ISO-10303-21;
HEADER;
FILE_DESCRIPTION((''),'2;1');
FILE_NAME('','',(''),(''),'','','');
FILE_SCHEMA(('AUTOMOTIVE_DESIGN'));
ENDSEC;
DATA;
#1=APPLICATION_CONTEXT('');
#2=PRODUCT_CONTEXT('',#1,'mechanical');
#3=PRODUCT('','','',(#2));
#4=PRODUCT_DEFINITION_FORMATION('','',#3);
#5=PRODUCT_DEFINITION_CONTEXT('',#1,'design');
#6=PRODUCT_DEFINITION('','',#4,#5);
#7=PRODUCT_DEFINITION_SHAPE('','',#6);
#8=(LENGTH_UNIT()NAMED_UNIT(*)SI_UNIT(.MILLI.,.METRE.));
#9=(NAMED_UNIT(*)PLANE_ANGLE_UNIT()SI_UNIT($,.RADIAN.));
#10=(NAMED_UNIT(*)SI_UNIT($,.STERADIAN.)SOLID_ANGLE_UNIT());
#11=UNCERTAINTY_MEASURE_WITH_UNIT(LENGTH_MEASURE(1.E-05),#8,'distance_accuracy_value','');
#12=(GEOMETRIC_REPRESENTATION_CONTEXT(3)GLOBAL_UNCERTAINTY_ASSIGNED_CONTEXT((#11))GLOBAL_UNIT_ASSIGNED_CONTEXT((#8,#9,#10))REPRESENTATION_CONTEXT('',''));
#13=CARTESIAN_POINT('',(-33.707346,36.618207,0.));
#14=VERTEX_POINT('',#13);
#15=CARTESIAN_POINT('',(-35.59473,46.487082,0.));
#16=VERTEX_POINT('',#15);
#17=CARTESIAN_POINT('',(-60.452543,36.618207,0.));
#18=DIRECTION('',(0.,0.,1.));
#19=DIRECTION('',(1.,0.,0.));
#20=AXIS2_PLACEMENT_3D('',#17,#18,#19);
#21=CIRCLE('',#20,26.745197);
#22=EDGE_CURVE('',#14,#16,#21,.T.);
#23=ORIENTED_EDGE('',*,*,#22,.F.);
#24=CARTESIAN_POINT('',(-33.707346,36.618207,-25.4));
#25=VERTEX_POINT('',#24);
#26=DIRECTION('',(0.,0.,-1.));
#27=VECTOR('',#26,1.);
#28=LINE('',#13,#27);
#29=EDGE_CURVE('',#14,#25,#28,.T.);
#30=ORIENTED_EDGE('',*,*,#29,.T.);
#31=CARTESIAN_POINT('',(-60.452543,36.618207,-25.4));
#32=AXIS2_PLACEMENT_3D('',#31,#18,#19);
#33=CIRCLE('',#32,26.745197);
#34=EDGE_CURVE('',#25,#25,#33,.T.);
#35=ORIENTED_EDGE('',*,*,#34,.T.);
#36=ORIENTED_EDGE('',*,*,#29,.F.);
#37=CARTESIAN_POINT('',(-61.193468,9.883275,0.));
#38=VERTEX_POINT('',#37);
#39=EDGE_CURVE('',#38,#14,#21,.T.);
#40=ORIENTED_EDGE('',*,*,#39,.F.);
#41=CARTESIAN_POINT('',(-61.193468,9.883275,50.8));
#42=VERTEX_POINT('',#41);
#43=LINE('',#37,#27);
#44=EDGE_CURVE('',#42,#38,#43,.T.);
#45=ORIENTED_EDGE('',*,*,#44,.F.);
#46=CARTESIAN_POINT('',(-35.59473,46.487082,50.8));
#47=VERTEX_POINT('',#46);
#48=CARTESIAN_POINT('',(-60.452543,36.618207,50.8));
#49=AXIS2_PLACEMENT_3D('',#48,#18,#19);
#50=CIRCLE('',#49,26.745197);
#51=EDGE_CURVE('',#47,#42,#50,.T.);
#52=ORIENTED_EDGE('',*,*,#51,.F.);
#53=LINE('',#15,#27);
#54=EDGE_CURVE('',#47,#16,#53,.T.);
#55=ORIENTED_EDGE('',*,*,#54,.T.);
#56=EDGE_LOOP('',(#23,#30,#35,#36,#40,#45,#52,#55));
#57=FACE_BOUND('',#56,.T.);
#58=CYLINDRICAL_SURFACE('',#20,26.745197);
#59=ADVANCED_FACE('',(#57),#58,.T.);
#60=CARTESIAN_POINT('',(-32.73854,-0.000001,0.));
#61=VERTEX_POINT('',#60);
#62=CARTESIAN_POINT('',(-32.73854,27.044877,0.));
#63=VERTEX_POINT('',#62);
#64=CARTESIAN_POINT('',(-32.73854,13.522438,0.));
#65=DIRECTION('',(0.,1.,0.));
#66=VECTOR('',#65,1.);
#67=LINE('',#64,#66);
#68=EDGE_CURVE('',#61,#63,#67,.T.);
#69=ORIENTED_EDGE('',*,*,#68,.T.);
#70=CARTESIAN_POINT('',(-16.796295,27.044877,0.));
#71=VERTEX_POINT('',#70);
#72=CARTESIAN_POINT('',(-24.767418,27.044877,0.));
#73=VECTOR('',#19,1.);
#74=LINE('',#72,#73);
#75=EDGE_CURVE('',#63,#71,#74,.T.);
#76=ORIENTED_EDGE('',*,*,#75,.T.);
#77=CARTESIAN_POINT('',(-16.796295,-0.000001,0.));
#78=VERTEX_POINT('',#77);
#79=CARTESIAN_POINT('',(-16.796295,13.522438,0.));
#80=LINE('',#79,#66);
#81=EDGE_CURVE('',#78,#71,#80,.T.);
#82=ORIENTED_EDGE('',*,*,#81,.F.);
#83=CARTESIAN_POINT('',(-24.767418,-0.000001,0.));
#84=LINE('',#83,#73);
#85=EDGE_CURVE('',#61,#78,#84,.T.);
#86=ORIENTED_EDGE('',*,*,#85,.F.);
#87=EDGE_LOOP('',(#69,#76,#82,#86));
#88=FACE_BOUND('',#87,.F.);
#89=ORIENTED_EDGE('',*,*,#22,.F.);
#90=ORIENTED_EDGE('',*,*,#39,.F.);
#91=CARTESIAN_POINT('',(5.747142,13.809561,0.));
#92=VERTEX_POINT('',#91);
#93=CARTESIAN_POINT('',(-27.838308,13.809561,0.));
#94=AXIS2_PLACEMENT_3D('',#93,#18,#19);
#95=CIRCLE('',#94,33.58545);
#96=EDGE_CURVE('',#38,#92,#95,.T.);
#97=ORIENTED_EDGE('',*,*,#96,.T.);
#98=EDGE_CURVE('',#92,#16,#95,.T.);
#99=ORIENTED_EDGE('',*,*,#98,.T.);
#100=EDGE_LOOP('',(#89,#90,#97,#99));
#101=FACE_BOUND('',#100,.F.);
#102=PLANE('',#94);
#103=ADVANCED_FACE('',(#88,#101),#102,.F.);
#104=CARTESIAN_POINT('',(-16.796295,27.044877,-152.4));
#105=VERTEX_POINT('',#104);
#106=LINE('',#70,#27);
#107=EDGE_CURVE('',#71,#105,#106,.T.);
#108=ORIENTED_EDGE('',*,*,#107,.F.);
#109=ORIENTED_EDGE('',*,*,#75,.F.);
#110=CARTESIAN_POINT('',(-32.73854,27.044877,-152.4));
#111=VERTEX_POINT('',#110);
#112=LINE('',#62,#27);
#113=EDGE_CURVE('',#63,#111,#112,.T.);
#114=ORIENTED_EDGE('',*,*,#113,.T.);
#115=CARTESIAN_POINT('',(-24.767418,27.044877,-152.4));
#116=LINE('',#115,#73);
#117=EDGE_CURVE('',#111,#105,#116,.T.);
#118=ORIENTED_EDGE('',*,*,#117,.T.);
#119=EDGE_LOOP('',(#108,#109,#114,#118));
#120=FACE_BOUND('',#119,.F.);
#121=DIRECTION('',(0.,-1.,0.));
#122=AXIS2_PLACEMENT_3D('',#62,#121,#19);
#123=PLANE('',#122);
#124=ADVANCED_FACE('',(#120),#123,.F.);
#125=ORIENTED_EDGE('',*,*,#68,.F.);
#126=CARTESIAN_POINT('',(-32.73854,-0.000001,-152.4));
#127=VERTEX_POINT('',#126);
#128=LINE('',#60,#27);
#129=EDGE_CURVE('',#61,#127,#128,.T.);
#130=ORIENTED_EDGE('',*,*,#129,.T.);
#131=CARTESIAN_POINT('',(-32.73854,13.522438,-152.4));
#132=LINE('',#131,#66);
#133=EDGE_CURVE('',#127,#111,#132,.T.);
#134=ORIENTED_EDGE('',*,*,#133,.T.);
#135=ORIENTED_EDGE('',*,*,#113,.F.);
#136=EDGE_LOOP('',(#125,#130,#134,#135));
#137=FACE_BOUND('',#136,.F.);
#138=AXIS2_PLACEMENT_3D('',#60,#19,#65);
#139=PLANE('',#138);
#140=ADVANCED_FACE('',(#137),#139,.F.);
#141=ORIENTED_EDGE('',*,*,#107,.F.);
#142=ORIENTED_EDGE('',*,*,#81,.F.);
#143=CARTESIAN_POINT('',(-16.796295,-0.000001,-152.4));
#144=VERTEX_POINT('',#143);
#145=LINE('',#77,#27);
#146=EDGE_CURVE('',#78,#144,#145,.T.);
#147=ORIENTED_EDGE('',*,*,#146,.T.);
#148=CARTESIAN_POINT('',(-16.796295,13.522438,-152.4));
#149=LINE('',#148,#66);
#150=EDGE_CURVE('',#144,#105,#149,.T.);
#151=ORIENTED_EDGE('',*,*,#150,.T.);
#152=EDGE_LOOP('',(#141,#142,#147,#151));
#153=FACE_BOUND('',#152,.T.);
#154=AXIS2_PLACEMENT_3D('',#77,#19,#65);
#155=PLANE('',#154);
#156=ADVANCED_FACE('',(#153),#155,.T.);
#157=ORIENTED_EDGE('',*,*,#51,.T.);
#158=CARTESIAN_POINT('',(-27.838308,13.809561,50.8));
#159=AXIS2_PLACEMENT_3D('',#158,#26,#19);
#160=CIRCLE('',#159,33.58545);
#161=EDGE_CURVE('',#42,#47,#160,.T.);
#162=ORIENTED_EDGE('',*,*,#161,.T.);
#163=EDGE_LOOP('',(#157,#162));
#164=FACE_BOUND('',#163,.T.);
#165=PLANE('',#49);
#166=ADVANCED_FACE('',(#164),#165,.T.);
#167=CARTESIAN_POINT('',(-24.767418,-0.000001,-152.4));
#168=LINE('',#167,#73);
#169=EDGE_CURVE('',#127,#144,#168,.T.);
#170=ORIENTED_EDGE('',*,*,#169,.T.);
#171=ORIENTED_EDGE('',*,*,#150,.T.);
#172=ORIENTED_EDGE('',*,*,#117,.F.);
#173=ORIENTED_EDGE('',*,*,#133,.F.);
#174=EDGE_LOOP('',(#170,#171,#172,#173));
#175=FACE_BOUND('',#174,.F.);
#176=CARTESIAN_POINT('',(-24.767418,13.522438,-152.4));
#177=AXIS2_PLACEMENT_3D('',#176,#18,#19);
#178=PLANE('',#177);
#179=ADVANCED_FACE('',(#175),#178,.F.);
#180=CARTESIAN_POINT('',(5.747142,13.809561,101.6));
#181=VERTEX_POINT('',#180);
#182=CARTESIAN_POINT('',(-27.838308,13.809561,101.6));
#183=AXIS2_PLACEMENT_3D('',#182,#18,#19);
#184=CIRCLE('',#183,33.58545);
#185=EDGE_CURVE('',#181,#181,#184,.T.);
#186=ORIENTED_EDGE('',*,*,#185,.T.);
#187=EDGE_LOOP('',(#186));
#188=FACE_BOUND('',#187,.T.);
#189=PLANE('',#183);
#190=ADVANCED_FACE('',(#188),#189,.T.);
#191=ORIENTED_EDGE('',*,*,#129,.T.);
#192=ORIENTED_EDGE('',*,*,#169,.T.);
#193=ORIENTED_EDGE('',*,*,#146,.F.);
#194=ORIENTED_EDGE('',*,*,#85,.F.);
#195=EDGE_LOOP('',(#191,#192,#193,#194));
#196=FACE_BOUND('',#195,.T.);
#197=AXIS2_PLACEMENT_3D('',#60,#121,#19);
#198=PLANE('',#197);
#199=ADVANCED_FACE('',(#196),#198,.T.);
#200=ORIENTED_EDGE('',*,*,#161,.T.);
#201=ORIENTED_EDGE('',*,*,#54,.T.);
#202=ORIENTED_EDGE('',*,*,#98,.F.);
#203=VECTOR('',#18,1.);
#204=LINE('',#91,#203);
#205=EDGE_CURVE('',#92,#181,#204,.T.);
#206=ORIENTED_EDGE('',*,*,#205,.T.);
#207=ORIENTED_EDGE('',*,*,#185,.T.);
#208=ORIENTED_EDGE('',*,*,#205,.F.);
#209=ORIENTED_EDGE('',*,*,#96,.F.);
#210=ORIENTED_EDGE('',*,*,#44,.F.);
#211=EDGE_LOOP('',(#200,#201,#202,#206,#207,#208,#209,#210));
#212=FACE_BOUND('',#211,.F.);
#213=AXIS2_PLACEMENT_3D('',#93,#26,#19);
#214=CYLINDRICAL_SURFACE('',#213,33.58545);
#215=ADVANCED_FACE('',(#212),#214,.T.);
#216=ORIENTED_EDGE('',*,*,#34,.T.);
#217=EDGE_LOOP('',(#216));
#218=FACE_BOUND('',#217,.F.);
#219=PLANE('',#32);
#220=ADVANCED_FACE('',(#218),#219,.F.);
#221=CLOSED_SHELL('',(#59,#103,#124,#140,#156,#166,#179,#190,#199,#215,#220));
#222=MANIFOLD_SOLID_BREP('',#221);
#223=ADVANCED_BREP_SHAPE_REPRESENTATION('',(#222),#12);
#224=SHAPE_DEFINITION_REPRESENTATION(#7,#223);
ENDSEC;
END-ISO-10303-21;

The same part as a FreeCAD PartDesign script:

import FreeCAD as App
import Part
import Sketcher
from FreeCAD import Vector
Q = App.Units.Quantity

doc = App.newDocument("Part")
body = doc.addObject("PartDesign::Body", "Body")

# Sketch on XY plane
sketch1 = body.newObject("Sketcher::SketchObject", "Sketch")
sketch1.AttachmentSupport = (doc.getObject("XY_Plane"), [""])
sketch1.MapMode = "FlatFace"
sketch1.addGeometry(Part.Circle(Vector(-60, 37, 0), Vector(0, 0, 1), 27), False)
sketch1.addConstraint(Sketcher.Constraint("Diameter", 0, 53.490394))
sketch1.addConstraint(Sketcher.Constraint("DistanceX", 0, 3, -1, 1, 60.452543))
sketch1.addConstraint(Sketcher.Constraint("DistanceY", -1, 1, 0, 3, 36.618207))
pad1 = body.newObject("PartDesign::Pad", "Pad")
pad1.Profile = sketch1
pad1.Length = Q("2 in")

# Sketch on XY plane
sketch2 = body.newObject("Sketcher::SketchObject", "Sketch001")
sketch2.AttachmentSupport = (doc.getObject("XY_Plane"), [""])
sketch2.MapMode = "FlatFace"
sketch2.addGeometry(Part.Circle(Vector(-28, 14, 0), Vector(0, 0, 1), 34), False)
sketch2.addConstraint(Sketcher.Constraint("Diameter", 0, 67.1709))
sketch2.addConstraint(Sketcher.Constraint("DistanceX", 0, 3, -1, 1, 27.838308))
sketch2.addConstraint(Sketcher.Constraint("DistanceY", -1, 1, 0, 3, 13.809561))
pad2 = body.newObject("PartDesign::Pad", "Pad001")
pad2.Profile = sketch2
pad2.Length = Q("4 in")

# Sketch on XY plane
sketch3 = body.newObject("Sketcher::SketchObject", "Sketch002")
sketch3.AttachmentSupport = (doc.getObject("XY_Plane"), [""])
sketch3.MapMode = "FlatFace"
sketch3.addGeometry(Part.Circle(Vector(-60, 37, 0), Vector(0, 0, 1), 27), False)
sketch3.addConstraint(Sketcher.Constraint("Diameter", 0, 53.490394))
sketch3.addConstraint(Sketcher.Constraint("DistanceX", 0, 3, -1, 1, 60.452543))
sketch3.addConstraint(Sketcher.Constraint("DistanceY", -1, 1, 0, 3, 36.618207))
pad3 = body.newObject("PartDesign::Pad", "Pad002")
pad3.Profile = sketch3
pad3.Length = Q("2 in")

# Sketch on XY plane
sketch4 = body.newObject("Sketcher::SketchObject", "Sketch003")
sketch4.AttachmentSupport = (doc.getObject("XY_Plane"), [""])
sketch4.MapMode = "FlatFace"
sketch4.addGeometry(Part.Circle(Vector(-60, 37, 0), Vector(0, 0, 1), 27), False)
sketch4.addConstraint(Sketcher.Constraint("Diameter", 0, 53.490394))
sketch4.addConstraint(Sketcher.Constraint("DistanceX", 0, 3, -1, 1, 60.452543))
sketch4.addConstraint(Sketcher.Constraint("DistanceY", -1, 1, 0, 3, 36.618207))
pad4 = body.newObject("PartDesign::Pad", "Pad003")
pad4.Profile = sketch4
pad4.Length = Q("1 in")
pad4.Reversed = True

# Sketch on XY plane
sketch5 = body.newObject("Sketcher::SketchObject", "Sketch004")
sketch5.AttachmentSupport = (doc.getObject("XY_Plane"), [""])
sketch5.MapMode = "FlatFace"
sketch5.addGeometry(Part.LineSegment(Vector(-33, 27, 0), Vector(-33, 0, 0)), False)
sketch5.addGeometry(Part.LineSegment(Vector(-33, 0, 0), Vector(-17, 0, 0)), False)
sketch5.addGeometry(Part.LineSegment(Vector(-17, 0, 0), Vector(-17, 27, 0)), False)
sketch5.addGeometry(Part.LineSegment(Vector(-17, 27, 0), Vector(-33, 27, 0)), False)
sketch5.addConstraint(Sketcher.Constraint("Coincident", 0, 2, 1, 1))
sketch5.addConstraint(Sketcher.Constraint("Coincident", 1, 2, 2, 1))
sketch5.addConstraint(Sketcher.Constraint("Coincident", 2, 2, 3, 1))
sketch5.addConstraint(Sketcher.Constraint("Coincident", 3, 2, 0, 1))
sketch5.addConstraint(Sketcher.Constraint("Vertical", 0))
sketch5.addConstraint(Sketcher.Constraint("Horizontal", 1))
sketch5.addConstraint(Sketcher.Constraint("Vertical", 2))
sketch5.addConstraint(Sketcher.Constraint("Horizontal", 3))
sketch5.addConstraint(Sketcher.Constraint("PointOnObject", 0, 2, -1))
sketch5.addConstraint(Sketcher.Constraint("DistanceX", 1, 1, 1, 2, 15.942245))
sketch5.addConstraint(Sketcher.Constraint("DistanceY", 0, 2, 0, 1, 27.044877))
sketch5.addConstraint(Sketcher.Constraint("DistanceX", 0, 2, -1, 1, 32.73854))
pad5 = body.newObject("PartDesign::Pad", "Pad004")
pad5.Profile = sketch5
pad5.Length = Q("6 in")
pad5.Reversed = True

doc.recompute()
